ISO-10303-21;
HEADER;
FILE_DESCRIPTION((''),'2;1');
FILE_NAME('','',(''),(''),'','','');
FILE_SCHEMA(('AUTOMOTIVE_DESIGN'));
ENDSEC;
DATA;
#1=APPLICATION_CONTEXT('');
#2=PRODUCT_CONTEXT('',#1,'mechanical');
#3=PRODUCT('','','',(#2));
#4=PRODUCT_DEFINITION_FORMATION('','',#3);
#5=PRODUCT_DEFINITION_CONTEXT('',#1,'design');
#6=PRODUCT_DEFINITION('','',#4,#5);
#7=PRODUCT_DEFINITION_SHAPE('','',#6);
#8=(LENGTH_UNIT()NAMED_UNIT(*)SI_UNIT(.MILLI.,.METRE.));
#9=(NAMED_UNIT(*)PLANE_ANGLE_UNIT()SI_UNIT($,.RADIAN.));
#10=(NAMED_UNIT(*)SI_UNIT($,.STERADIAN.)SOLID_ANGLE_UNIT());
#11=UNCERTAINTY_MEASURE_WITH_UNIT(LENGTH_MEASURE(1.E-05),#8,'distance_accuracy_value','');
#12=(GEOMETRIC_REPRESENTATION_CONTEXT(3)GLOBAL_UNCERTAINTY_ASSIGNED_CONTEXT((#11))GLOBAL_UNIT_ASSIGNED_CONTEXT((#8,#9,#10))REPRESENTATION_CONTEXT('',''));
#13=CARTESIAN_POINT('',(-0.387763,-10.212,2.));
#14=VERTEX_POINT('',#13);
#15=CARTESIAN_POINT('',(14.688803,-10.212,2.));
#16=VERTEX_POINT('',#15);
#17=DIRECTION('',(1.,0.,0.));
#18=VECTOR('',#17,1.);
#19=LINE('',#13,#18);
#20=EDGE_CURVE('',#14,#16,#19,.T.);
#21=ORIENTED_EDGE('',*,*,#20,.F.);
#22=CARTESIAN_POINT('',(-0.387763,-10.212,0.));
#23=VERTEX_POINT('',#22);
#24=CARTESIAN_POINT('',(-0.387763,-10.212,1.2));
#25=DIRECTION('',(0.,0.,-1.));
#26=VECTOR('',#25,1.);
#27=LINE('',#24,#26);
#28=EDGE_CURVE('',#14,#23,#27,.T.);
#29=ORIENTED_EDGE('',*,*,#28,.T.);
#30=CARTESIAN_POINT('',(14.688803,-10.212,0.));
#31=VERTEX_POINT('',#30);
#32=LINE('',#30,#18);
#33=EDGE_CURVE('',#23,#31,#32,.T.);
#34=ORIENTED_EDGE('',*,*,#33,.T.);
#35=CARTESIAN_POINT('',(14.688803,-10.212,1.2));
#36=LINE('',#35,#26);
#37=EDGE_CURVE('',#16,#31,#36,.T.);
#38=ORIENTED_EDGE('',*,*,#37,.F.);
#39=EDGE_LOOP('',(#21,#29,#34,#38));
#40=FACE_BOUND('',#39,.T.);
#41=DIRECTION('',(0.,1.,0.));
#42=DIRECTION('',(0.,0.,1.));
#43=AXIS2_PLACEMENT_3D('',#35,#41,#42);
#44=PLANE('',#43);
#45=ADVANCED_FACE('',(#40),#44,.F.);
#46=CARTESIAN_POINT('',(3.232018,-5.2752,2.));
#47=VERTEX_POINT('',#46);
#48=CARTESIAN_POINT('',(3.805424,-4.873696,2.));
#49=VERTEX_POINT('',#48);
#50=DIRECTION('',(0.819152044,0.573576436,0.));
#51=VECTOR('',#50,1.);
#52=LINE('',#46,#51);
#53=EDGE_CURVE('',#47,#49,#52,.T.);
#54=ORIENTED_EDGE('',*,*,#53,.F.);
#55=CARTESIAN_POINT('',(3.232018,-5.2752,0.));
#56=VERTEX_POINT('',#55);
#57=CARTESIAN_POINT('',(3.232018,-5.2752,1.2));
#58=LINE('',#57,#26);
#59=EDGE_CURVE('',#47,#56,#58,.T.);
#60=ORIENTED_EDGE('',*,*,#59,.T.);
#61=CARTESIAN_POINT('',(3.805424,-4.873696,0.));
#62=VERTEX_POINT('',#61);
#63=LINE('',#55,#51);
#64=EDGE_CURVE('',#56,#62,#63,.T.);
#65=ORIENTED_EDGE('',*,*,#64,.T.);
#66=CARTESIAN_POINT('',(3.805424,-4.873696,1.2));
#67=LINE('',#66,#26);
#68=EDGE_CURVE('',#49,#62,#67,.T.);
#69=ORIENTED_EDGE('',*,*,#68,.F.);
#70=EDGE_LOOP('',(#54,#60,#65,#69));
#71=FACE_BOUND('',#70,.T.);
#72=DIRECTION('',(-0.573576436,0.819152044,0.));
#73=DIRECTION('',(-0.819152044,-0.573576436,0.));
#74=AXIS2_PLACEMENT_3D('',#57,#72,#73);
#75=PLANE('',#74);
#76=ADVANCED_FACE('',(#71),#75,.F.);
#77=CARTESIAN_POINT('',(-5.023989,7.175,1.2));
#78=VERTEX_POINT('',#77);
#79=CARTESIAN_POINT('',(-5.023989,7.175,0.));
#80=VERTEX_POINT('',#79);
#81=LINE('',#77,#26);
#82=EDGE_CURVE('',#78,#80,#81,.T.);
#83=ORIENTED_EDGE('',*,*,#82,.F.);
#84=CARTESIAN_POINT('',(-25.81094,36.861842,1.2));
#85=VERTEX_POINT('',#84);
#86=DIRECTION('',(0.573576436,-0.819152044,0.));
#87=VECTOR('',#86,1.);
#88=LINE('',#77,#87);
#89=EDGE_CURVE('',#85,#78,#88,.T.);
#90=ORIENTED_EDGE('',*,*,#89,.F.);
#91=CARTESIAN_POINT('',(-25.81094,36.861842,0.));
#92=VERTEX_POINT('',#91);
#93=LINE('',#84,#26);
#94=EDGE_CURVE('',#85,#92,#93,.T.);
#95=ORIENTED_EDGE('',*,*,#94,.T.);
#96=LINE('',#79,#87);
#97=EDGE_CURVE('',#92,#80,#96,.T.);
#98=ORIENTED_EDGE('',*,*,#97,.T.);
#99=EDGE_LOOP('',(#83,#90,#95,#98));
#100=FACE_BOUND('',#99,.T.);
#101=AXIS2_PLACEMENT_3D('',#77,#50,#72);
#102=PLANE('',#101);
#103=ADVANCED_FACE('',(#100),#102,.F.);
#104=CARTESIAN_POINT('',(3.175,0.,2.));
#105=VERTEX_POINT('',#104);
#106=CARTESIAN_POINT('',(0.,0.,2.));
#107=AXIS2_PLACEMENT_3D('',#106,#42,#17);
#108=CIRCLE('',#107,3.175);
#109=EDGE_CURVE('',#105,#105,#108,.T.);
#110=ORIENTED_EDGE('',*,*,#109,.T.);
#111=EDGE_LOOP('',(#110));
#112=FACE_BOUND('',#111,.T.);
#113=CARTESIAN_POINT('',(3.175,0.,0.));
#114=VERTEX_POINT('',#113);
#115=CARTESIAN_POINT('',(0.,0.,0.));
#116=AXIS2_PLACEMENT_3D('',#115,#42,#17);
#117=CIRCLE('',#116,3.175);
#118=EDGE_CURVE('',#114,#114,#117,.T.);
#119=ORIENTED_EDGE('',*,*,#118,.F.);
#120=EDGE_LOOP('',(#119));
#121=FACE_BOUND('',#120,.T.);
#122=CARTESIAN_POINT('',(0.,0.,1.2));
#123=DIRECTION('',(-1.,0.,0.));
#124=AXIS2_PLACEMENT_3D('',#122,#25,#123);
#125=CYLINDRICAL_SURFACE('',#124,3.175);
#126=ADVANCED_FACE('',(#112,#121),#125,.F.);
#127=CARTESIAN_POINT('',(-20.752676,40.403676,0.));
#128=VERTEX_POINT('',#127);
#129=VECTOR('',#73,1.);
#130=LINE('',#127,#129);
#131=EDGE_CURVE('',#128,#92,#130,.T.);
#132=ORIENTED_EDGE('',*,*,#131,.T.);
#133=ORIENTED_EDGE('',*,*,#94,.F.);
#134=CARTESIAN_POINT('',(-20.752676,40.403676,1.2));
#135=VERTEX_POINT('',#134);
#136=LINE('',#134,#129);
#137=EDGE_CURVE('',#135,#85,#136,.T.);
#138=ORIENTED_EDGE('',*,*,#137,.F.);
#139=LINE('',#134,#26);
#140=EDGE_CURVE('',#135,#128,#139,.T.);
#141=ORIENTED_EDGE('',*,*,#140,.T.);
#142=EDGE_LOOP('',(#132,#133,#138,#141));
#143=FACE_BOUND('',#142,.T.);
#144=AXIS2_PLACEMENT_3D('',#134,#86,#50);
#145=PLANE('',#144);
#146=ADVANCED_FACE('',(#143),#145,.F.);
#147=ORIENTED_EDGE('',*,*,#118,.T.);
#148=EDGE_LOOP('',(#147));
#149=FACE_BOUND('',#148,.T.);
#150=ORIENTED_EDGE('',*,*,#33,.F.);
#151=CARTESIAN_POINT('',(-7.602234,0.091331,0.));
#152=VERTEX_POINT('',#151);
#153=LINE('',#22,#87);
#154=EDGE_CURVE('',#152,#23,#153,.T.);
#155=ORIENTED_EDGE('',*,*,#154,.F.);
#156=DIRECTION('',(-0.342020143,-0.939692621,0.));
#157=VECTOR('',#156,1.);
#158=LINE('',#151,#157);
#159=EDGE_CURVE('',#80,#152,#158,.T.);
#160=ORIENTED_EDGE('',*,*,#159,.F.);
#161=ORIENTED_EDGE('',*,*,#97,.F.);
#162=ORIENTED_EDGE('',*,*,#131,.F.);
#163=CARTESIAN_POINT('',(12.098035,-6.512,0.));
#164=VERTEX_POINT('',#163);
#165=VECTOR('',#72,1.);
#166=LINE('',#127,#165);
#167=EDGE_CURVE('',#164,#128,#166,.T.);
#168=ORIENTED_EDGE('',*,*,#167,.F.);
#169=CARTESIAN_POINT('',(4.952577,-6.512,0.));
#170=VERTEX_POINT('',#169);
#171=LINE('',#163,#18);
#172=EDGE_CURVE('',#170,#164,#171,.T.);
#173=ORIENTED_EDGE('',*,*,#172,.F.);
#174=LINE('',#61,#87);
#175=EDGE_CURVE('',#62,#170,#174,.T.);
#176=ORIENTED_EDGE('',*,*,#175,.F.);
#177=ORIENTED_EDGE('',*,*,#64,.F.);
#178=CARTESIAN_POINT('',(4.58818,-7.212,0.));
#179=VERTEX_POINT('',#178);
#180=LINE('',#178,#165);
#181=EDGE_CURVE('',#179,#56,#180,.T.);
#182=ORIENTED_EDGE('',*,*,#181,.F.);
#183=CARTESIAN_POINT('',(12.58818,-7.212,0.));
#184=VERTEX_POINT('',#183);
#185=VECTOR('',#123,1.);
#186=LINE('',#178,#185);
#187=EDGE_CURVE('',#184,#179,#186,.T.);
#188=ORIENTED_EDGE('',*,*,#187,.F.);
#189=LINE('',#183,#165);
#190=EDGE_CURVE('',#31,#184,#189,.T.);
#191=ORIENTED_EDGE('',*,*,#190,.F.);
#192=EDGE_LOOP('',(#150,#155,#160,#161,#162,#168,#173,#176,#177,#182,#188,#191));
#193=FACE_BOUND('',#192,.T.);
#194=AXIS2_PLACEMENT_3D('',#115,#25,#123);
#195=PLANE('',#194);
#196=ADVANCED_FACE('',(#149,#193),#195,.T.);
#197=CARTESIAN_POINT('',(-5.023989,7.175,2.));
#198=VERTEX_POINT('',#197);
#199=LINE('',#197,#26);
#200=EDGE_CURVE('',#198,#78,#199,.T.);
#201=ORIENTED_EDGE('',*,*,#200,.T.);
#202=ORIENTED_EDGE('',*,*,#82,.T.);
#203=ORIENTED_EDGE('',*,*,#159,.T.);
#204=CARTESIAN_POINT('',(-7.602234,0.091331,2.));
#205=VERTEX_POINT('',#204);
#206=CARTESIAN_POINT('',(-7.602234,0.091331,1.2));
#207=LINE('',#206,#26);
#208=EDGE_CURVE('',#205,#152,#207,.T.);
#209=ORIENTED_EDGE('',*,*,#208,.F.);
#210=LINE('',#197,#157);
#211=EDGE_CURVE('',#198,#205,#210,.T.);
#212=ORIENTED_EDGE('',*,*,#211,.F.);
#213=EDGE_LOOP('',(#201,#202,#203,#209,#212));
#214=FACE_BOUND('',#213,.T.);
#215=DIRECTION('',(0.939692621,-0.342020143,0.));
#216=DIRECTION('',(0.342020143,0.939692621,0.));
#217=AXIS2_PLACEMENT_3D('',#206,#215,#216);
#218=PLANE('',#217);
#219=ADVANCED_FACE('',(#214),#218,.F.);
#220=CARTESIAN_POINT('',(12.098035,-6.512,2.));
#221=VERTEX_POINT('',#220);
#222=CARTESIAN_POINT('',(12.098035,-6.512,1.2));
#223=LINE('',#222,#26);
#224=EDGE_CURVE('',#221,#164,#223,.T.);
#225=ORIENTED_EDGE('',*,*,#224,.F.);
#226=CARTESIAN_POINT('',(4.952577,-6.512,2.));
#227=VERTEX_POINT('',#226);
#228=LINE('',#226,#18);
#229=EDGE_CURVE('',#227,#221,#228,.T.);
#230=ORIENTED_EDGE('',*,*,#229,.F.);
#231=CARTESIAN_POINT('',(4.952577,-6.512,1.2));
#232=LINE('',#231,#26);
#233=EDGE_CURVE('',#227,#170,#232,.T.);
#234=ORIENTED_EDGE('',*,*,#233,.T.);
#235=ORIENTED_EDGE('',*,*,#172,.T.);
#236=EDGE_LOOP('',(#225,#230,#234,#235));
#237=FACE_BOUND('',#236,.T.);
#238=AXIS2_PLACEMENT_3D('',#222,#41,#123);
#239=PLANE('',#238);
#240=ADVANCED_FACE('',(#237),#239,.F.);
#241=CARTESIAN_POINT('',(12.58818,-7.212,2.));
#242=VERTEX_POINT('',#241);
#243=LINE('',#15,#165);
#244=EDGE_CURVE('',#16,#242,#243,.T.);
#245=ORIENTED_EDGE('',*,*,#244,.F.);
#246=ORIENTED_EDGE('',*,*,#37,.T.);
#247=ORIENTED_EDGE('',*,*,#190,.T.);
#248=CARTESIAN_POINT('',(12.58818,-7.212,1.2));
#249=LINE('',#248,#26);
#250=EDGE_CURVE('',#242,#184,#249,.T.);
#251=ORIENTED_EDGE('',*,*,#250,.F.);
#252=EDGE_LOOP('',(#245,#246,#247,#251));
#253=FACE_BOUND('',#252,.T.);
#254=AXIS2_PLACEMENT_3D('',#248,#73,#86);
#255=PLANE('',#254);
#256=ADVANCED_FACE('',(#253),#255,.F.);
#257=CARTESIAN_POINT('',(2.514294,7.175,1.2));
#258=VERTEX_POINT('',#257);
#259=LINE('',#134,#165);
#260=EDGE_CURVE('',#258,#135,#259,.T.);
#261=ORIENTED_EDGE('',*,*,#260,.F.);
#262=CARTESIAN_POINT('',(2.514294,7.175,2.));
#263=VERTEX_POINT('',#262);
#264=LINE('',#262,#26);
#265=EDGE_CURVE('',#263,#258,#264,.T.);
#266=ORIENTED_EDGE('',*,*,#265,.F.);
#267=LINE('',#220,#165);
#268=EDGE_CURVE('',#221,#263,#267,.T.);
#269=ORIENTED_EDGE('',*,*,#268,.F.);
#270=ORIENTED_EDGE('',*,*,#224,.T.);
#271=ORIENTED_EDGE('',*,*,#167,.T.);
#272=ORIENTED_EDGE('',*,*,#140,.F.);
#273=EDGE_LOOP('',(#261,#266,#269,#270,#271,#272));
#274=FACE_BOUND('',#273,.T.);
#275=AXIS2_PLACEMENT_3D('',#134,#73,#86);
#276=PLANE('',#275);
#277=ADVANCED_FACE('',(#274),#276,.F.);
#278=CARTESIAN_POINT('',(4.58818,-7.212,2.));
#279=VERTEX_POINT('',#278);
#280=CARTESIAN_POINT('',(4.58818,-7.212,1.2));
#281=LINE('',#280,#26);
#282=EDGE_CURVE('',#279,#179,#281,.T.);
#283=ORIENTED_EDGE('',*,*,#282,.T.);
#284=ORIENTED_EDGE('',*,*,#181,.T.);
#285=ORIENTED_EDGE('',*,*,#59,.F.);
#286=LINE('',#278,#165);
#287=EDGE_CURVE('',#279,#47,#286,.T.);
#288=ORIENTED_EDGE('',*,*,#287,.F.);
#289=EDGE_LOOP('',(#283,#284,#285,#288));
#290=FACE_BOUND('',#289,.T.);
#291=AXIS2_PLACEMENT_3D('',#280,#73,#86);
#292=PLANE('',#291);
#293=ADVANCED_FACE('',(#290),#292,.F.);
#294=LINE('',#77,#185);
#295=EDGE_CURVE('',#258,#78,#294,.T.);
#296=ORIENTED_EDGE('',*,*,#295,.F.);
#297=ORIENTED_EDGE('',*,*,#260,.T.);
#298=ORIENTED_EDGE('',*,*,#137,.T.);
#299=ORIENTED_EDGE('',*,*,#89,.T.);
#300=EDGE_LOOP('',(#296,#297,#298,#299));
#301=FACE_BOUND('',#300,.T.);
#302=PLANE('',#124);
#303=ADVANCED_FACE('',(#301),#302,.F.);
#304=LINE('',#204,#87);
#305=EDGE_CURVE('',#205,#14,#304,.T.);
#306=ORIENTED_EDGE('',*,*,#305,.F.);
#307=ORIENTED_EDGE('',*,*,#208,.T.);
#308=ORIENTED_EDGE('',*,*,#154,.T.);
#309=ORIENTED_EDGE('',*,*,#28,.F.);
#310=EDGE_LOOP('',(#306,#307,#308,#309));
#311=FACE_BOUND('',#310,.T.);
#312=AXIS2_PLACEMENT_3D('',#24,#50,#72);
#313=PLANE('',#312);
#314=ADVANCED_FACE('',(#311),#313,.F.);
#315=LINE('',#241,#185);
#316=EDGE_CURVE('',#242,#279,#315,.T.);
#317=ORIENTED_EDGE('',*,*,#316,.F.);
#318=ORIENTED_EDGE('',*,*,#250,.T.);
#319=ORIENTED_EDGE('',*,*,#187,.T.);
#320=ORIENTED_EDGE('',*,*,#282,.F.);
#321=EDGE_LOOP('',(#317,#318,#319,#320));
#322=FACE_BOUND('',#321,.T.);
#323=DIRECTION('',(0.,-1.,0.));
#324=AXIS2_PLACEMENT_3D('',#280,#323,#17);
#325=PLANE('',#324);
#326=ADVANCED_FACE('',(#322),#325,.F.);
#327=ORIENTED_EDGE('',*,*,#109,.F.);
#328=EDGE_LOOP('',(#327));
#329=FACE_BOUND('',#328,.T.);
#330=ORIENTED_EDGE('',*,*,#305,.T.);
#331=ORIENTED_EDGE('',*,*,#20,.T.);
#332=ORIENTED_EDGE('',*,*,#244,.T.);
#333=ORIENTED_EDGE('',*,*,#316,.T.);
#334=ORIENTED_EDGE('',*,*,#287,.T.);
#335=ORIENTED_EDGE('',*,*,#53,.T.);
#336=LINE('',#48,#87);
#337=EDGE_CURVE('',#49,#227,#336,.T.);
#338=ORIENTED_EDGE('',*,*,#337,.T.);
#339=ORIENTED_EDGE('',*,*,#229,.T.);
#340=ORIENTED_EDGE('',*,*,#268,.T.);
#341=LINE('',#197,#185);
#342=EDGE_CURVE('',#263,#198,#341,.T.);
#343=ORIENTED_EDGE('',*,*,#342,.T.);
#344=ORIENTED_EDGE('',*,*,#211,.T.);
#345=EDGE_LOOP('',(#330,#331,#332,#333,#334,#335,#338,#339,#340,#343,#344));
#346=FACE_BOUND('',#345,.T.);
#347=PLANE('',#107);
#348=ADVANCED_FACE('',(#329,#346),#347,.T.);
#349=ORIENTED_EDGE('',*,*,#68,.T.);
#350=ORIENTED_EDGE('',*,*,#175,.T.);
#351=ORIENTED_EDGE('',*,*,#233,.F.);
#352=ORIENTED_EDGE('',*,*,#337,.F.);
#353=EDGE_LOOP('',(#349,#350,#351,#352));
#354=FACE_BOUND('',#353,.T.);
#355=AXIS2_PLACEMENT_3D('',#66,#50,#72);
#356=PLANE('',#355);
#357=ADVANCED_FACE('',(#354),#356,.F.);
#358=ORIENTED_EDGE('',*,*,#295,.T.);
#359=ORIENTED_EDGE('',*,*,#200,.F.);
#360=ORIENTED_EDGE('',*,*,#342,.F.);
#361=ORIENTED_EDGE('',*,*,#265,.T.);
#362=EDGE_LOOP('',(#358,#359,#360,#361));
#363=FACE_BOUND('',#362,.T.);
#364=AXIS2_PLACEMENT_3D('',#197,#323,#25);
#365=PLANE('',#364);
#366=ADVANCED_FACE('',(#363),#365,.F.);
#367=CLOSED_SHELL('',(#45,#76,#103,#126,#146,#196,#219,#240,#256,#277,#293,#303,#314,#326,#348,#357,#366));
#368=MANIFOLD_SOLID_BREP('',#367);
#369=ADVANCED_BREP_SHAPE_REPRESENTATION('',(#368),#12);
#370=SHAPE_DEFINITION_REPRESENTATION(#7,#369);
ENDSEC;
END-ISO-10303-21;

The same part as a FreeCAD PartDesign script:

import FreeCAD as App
import Part
import Sketcher
Q = App.Units.Quantity

doc = App.newDocument("Part")
body = doc.addObject("PartDesign::Body", "Body")

sketch1 = doc.addObject("Sketcher::SketchObject", "Sketch")
body.addObject(sketch1)
sketch1.AttachmentSupport = (doc.XY_Plane, [""])
sketch1.MapMode = "FlatFace"
sketch1.addGeometry(Part.LineSegment(App.Vector(-7.6, 0.1, 0), App.Vector(-0.4, -10.2, 0)), False)
sketch1.addGeometry(Part.LineSegment(App.Vector(-0.4, -10.2, 0), App.Vector(14.7, -10.2, 0)), False)
sketch1.addGeometry(Part.LineSegment(App.Vector(14.7, -10.2, 0), App.Vector(12.6, -7.2, 0)), False)
sketch1.addGeometry(Part.LineSegment(App.Vector(12.6, -7.2, 0), App.Vector(4.6, -7.2, 0)), False)
sketch1.addGeometry(Part.LineSegment(App.Vector(4.6, -7.2, 0), App.Vector(3.2, -5.3, 0)), False)
sketch1.addGeometry(Part.LineSegment(App.Vector(3.2, -5.3, 0), App.Vector(3.8, -4.9, 0)), False)
sketch1.addGeometry(Part.LineSegment(App.Vector(3.8, -4.9, 0), App.Vector(5, -6.5, 0)), False)
sketch1.addGeometry(Part.LineSegment(App.Vector(5, -6.5, 0), App.Vector(12.1, -6.5, 0)), False)
sketch1.addGeometry(Part.LineSegment(App.Vector(12.1, -6.5, 0), App.Vector(-20.8, 40.4, 0)), False)
sketch1.addGeometry(Part.LineSegment(App.Vector(-20.8, 40.4, 0), App.Vector(-25.8, 36.9, 0)), False)
sketch1.addGeometry(Part.LineSegment(App.Vector(-25.8, 36.9, 0), App.Vector(-5, 7.2, 0)), False)
sketch1.addGeometry(Part.LineSegment(App.Vector(-5, 7.2, 0), App.Vector(-7.6, 0.1, 0)), False)
sketch1.addGeometry(Part.Circle(App.Vector(0, 0, 0), App.Vector(0, 0, 1), 3.2), False)
sketch1.addConstraint(Sketcher.Constraint("Coincident", 0, 2, 1, 1))
sketch1.addConstraint(Sketcher.Constraint("Coincident", 1, 2, 2, 1))
sketch1.addConstraint(Sketcher.Constraint("Coincident", 2, 2, 3, 1))
sketch1.addConstraint(Sketcher.Constraint("Coincident", 3, 2, 4, 1))
sketch1.addConstraint(Sketcher.Constraint("Coincident", 4, 2, 5, 1))
sketch1.addConstraint(Sketcher.Constraint("Coincident", 5, 2, 6, 1))
sketch1.addConstraint(Sketcher.Constraint("Coincident", 6, 2, 7, 1))
sketch1.addConstraint(Sketcher.Constraint("Coincident", 7, 2, 8, 1))
sketch1.addConstraint(Sketcher.Constraint("Coincident", 8, 2, 9, 1))
sketch1.addConstraint(Sketcher.Constraint("Coincident", 9, 2, 10, 1))
sketch1.addConstraint(Sketcher.Constraint("Coincident", 10, 2, 11, 1))
sketch1.addConstraint(Sketcher.Constraint("Coincident", 11, 2, 0, 1))
sketch1.addConstraint(Sketcher.Constraint("Horizontal", 1))
sketch1.addConstraint(Sketcher.Constraint("Horizontal", 3))
sketch1.addConstraint(Sketcher.Constraint("Horizontal", 7))
sketch1.addConstraint(Sketcher.Constraint("Coincident", 12, 3, -1, 1))
sketch1.addConstraint(Sketcher.Constraint("Parallel", 0, 2))
sketch1.addConstraint(Sketcher.Constraint("Parallel", 2, 4))
sketch1.addConstraint(Sketcher.Constraint("Perpendicular", 4, 5))
sketch1.addConstraint(Sketcher.Constraint("Perpendicular", 5, 6))
sketch1.addConstraint(Sketcher.Constraint("Parallel", 6, 8))
sketch1.addConstraint(Sketcher.Constraint("Perpendicular", 8, 9))
sketch1.addConstraint(Sketcher.Constraint("Perpendicular", 9, 10))
sketch1.addConstraint(Sketcher.Constraint("Diameter", 12, Q("6.35 mm")))
sketch1.addConstraint(Sketcher.Constraint("DistanceX", 3, 2, 3, 1, Q("8 mm")))
sketch1.addConstraint(Sketcher.Constraint("Angle", 0, Q("-55 deg")))
sketch1.addConstraint(Sketcher.Constraint("Angle", 11, Q("-110 deg")))
sketch1.addConstraint(Sketcher.Constraint("Distance", 6, Q("2 mm")))
sketch1.addConstraint(Sketcher.Constraint("DistanceY", 1, 2, 2, 2, Q("3 mm")))
sketch1.addConstraint(Sketcher.Constraint("Distance", 5, Q("0.7 mm")))
sketch1.addConstraint(Sketcher.Constraint("DistanceY", 3, 2, 6, 2, Q("0.7 mm")))
sketch1.addConstraint(Sketcher.Constraint("Distance", 9, Q("6.175 mm")))
sketch1.addConstraint(Sketcher.Constraint("DistanceY", 0, 2, -1, 1, Q("10.212 mm")))
sketch1.addConstraint(Sketcher.Constraint("DistanceY", -1, 1, 10, 2, Q("7.175 mm")))
sketch1.addConstraint(Sketcher.Constraint("DistanceX", 8, 2, 5, 2, Q("24.5581 mm")))
sketch1.addConstraint(Sketcher.Constraint("DistanceX", 1, 1, 1, 2, Q("15.076566 mm")))
sketch1.addConstraint(Sketcher.Constraint("DistanceX", 7, 1, 7, 2, Q("7.145458 mm")))
sketch1.addConstraint(Sketcher.Constraint("DistanceX", -1, 1, 2, 2, Q("12.58818 mm")))
pad1 = doc.addObject("PartDesign::Pad", "Pad")
body.addObject(pad1)
pad1.Profile = sketch1
pad1.Length = 1.2

sketch2 = doc.addObject("Sketcher::SketchObject", "Sketch001")
body.addObject(sketch2)
sketch2.AttachmentSupport = (doc.XY_Plane, [""])
sketch2.MapMode = "FlatFace"
sketch2.AttachmentOffset = App.Placement(App.Vector(0, 0, 1.2), App.Rotation())
sketch2.addGeometry(Part.LineSegment(App.Vector(2.5, 7.2, 0), App.Vector(-5, 7.2, 0)), False)
sketch2.addGeometry(Part.LineSegment(App.Vector(-5, 7.2, 0), App.Vector(-7.6, 0.1, 0)), False)
sketch2.addGeometry(Part.LineSegment(App.Vector(-7.6, 0.1, 0), App.Vector(-0.4, -10.2, 0)), False)
sketch2.addGeometry(Part.LineSegment(App.Vector(-0.4, -10.2, 0), App.Vector(14.7, -10.2, 0)), False)
sketch2.addGeometry(Part.LineSegment(App.Vector(14.7, -10.2, 0), App.Vector(12.6, -7.2, 0)), False)
sketch2.addGeometry(Part.LineSegment(App.Vector(12.6, -7.2, 0), App.Vector(4.6, -7.2, 0)), False)
sketch2.addGeometry(Part.LineSegment(App.Vector(4.6, -7.2, 0), App.Vector(3.2, -5.3, 0)), False)
sketch2.addGeometry(Part.LineSegment(App.Vector(3.2, -5.3, 0), App.Vector(3.8, -4.9, 0)), False)
sketch2.addGeometry(Part.LineSegment(App.Vector(3.8, -4.9, 0), App.Vector(5, -6.5, 0)), False)
sketch2.addGeometry(Part.LineSegment(App.Vector(5, -6.5, 0), App.Vector(12.1, -6.5, 0)), False)
sketch2.addGeometry(Part.LineSegment(App.Vector(12.1, -6.5, 0), App.Vector(2.5, 7.2, 0)), False)
sketch2.addGeometry(Part.Circle(App.Vector(0, 0, 0), App.Vector(0, 0, 1), 3.2), False)
sketch2.addConstraint(Sketcher.Constraint("Coincident", 0, 2, 1, 1))
sketch2.addConstraint(Sketcher.Constraint("Coincident", 1, 2, 2, 1))
sketch2.addConstraint(Sketcher.Constraint("Coincident", 2, 2, 3, 1))
sketch2.addConstraint(Sketcher.Constraint("Coincident", 3, 2, 4, 1))
sketch2.addConstraint(Sketcher.Constraint("Coincident", 4, 2, 5, 1))
sketch2.addConstraint(Sketcher.Constraint("Coincident", 5, 2, 6, 1))
sketch2.addConstraint(Sketcher.Constraint("Coincident", 6, 2, 7, 1))
sketch2.addConstraint(Sketcher.Constraint("Coincident", 7, 2, 8, 1))
sketch2.addConstraint(Sketcher.Constraint("Coincident", 8, 2, 9, 1))
sketch2.addConstraint(Sketcher.Constraint("Coincident", 9, 2, 10, 1))
sketch2.addConstraint(Sketcher.Constraint("Coincident", 10, 2, 0, 1))
sketch2.addConstraint(Sketcher.Constraint("Horizontal", 0))
sketch2.addConstraint(Sketcher.Constraint("Horizontal", 3))
sketch2.addConstraint(Sketcher.Constraint("Horizontal", 5))
sketch2.addConstraint(Sketcher.Constraint("Horizontal", 9))
sketch2.addConstraint(Sketcher.Constraint("Coincident", 11, 3, -1, 1))
sketch2.addConstraint(Sketcher.Constraint("Parallel", 2, 4))
sketch2.addConstraint(Sketcher.Constraint("Parallel", 4, 6))
sketch2.addConstraint(Sketcher.Constraint("Perpendicular", 6, 7))
sketch2.addConstraint(Sketcher.Constraint("Perpendicular", 7, 8))
sketch2.addConstraint(Sketcher.Constraint("Parallel", 8, 10))
sketch2.addConstraint(Sketcher.Constraint("Diameter", 11, Q("6.35 mm")))
sketch2.addConstraint(Sketcher.Constraint("DistanceX", 5, 2, 5, 1, Q("8 mm")))
sketch2.addConstraint(Sketcher.Constraint("Angle", 1, Q("-110 deg")))
sketch2.addConstraint(Sketcher.Constraint("Angle", 2, Q("-55 deg")))
sketch2.addConstraint(Sketcher.Constraint("Distance", 8, Q("2 mm")))
sketch2.addConstraint(Sketcher.Constraint("DistanceY", 3, 2, 4, 2, Q("3 mm")))
sketch2.addConstraint(Sketcher.Constraint("Distance", 7, Q("0.7 mm")))
sketch2.addConstraint(Sketcher.Constraint("DistanceY", 5, 2, 8, 2, Q("0.7 mm")))
sketch2.addConstraint(Sketcher.Constraint("DistanceY", -1, 1, 0, 2, Q("7.175 mm")))
sketch2.addConstraint(Sketcher.Constraint("DistanceY", 2, 2, -1, 1, Q("10.212 mm")))
sketch2.addConstraint(Sketcher.Constraint("DistanceX", 0, 2, 0, 1, Q("7.538283 mm")))
sketch2.addConstraint(Sketcher.Constraint("DistanceX", 3, 1, 3, 2, Q("15.076566 mm")))
sketch2.addConstraint(Sketcher.Constraint("DistanceX", 9, 1, 9, 2, Q("7.145458 mm")))
sketch2.addConstraint(Sketcher.Constraint("DistanceX", 0, 2, -1, 1, Q("5.023989 mm")))
pad2 = doc.addObject("PartDesign::Pad", "Pad001")
body.addObject(pad2)
pad2.Profile = sketch2
pad2.Length = 0.8

doc.recompute()
